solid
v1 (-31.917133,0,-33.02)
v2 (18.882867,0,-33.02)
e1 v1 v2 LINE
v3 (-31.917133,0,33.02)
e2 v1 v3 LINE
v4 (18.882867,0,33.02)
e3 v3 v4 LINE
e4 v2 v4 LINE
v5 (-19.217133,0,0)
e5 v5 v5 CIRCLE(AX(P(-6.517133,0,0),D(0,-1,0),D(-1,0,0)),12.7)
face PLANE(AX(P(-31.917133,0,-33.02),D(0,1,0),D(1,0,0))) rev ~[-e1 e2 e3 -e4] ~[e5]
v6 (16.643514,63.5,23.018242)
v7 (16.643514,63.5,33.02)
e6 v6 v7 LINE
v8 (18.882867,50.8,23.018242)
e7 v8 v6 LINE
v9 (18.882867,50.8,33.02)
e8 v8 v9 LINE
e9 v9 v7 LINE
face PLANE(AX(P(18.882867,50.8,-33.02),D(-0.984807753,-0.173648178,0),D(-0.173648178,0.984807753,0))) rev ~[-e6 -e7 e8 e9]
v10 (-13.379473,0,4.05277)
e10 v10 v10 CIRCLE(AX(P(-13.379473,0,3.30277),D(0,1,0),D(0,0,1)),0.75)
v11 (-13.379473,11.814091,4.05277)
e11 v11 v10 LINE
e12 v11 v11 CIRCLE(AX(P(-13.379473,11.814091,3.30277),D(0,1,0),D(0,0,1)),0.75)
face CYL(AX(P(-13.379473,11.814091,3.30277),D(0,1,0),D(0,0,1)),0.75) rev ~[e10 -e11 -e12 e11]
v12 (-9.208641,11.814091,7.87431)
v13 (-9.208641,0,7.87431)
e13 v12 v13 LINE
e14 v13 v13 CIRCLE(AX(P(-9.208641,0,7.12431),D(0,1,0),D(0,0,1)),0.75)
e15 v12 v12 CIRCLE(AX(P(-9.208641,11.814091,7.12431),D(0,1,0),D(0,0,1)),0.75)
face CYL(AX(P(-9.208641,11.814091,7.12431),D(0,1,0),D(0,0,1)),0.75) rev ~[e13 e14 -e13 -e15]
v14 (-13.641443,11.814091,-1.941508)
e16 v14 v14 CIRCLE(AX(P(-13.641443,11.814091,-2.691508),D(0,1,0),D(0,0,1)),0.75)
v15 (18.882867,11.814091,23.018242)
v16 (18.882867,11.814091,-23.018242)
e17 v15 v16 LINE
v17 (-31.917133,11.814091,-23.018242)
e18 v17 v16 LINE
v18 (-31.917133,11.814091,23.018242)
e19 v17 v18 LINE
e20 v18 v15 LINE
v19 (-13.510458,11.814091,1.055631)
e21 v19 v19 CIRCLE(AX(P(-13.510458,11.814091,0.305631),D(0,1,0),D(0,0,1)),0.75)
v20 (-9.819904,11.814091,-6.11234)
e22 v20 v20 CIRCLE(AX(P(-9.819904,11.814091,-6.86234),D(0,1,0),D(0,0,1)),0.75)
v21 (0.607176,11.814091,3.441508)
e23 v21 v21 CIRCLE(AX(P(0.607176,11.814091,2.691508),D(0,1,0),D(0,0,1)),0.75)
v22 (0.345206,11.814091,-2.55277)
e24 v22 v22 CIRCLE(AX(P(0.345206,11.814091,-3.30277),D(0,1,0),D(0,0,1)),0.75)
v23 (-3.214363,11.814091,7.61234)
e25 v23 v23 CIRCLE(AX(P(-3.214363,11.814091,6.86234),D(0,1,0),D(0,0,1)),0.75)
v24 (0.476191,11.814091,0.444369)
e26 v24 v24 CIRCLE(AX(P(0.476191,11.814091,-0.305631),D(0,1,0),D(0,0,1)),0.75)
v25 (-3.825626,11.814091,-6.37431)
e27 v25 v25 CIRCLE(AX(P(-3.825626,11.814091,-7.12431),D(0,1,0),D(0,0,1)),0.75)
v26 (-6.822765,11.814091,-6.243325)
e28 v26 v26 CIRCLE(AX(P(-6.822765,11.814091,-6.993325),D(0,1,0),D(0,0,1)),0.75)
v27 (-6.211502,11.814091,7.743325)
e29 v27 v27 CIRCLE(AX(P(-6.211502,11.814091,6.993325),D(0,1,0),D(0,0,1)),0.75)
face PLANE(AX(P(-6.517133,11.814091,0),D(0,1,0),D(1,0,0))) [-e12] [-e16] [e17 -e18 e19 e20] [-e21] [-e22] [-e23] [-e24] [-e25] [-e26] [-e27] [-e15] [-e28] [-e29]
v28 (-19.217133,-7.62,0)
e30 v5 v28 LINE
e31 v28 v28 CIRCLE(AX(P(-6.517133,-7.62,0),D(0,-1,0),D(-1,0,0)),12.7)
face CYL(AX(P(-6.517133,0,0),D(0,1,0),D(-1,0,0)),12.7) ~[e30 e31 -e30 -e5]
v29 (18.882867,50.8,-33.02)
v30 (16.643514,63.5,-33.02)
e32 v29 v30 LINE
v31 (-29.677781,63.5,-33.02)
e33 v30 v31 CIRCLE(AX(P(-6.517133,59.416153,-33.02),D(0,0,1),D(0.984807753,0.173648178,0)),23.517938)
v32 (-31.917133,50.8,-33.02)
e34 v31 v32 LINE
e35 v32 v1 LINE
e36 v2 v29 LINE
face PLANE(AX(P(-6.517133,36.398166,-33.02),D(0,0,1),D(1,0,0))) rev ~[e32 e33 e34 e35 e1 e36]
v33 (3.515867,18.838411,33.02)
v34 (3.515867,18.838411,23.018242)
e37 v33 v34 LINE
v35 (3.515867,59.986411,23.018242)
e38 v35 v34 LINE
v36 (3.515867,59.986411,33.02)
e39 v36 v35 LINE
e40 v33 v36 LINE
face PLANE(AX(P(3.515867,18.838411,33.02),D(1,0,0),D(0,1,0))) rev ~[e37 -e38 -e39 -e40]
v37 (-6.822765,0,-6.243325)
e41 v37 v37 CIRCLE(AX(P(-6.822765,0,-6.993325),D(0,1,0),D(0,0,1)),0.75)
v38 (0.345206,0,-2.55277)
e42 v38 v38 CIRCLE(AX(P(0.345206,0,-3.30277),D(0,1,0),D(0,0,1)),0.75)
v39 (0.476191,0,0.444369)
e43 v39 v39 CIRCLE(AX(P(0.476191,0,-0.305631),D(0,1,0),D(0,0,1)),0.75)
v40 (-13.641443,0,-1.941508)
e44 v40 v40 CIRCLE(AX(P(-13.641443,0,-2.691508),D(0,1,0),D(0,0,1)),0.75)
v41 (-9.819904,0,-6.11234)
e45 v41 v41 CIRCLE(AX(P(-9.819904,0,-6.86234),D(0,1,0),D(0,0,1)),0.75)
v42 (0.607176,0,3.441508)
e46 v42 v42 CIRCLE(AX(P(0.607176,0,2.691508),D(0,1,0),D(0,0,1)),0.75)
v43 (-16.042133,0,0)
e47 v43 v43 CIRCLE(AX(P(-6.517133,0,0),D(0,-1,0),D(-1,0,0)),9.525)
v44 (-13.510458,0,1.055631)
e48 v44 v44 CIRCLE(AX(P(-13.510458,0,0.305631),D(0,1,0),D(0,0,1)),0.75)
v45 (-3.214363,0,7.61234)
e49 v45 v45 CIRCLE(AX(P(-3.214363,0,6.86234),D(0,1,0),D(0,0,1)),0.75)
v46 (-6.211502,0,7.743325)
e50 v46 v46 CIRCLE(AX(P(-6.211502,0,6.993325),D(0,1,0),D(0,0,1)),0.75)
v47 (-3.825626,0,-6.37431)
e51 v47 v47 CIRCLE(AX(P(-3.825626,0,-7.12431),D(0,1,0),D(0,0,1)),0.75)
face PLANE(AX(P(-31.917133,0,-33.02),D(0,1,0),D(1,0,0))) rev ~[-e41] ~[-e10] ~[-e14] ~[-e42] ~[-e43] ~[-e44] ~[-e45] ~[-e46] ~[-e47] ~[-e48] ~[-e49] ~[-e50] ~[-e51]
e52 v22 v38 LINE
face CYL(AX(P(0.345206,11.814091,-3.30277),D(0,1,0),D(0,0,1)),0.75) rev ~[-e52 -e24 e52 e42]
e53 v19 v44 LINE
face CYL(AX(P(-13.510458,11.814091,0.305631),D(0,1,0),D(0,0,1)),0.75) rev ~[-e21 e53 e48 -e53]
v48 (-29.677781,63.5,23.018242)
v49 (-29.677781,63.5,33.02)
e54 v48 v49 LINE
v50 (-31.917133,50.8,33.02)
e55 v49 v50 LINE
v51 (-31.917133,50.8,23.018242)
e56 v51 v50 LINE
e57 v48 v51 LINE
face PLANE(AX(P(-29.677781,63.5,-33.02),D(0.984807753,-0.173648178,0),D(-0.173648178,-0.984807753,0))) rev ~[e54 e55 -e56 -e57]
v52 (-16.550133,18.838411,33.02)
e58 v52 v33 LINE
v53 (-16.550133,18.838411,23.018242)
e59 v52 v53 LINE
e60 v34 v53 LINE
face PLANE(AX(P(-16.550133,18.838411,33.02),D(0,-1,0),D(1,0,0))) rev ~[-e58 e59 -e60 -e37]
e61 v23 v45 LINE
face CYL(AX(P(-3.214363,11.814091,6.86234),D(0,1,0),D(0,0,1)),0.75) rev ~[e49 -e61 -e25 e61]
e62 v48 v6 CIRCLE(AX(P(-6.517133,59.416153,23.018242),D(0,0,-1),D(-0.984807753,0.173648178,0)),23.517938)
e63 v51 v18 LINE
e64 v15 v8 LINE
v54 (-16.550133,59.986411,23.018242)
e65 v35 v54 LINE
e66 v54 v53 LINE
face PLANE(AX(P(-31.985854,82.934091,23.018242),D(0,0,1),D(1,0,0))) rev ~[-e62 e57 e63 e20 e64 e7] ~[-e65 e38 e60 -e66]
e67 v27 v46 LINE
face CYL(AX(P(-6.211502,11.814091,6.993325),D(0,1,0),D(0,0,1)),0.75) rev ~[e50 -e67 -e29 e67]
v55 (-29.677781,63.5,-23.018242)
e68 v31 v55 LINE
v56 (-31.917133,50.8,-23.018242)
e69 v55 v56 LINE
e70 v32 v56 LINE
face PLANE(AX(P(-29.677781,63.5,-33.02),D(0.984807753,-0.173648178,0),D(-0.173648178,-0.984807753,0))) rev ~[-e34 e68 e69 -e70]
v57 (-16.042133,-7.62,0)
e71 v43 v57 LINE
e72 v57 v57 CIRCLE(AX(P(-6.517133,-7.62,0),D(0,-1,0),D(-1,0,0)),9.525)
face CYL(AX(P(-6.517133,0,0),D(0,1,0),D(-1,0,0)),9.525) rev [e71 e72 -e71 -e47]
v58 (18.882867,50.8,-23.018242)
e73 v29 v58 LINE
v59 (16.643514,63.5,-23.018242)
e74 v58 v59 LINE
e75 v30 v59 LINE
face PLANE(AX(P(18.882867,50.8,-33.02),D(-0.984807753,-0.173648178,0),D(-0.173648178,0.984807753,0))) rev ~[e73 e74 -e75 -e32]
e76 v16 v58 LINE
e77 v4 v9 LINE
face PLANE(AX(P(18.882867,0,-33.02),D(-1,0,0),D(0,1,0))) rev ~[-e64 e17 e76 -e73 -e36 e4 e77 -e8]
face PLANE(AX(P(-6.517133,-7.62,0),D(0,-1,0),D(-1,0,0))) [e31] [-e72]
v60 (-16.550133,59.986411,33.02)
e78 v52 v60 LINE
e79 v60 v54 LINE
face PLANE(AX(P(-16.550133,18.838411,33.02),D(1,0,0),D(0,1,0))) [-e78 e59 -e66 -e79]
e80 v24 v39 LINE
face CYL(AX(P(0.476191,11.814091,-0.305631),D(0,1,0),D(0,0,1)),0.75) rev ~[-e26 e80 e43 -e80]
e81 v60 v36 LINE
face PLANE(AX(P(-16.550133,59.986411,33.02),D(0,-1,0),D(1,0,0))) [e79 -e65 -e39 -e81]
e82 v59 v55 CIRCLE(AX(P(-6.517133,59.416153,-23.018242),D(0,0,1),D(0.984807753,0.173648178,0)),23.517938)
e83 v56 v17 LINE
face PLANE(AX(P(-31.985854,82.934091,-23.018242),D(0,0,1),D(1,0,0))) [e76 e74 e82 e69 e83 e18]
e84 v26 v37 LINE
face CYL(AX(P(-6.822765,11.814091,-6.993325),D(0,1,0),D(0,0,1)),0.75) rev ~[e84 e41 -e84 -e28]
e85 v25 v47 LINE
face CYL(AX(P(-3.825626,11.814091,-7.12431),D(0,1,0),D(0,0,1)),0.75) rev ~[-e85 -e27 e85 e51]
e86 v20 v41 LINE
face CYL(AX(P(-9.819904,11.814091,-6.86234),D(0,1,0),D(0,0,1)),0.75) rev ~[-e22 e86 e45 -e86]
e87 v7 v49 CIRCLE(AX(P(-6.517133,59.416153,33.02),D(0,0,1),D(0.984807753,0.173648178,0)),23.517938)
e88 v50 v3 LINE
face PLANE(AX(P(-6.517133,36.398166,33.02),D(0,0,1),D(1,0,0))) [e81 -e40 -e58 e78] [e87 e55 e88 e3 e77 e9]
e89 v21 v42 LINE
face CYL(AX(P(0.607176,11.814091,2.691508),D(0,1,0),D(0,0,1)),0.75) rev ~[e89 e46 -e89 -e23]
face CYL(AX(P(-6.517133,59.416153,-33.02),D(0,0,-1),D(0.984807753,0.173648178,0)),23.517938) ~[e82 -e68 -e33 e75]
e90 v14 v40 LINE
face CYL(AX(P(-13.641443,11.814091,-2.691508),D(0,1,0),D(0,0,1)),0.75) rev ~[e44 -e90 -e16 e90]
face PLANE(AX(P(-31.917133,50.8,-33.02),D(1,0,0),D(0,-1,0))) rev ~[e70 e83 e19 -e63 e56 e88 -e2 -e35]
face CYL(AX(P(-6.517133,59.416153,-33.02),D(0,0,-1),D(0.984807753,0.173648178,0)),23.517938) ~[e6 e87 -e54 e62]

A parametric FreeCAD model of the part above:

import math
import FreeCAD as App
import Part
import Sketcher
from FreeCAD import Vector
Q = App.Units.Quantity


def add_polygon(sketch, points):
    """Adds a closed chain of lines whose ends are joined by coincident constraints."""
    first, n = sketch.GeometryCount, len(points)
    for a, b in zip(points, points[1:] + points[:1]):
        sketch.addGeometry(Part.LineSegment(App.Vector(*a, 0), App.Vector(*b, 0)), False)
    for i in range(n):
        sketch.addConstraint(Sketcher.Constraint("Coincident", first + i, 2, first + (i + 1) % n, 1))

doc = App.newDocument("Part")
body = doc.addObject("PartDesign::Body", "Body")

# Sketch on XY plane
sketch1 = doc.addObject("Sketcher::SketchObject", "Sketch")
body.addObject(sketch1)
sketch1.AttachmentSupport = (doc.XY_Plane, [""])
sketch1.MapMode = "FlatFace"
sketch1.addGeometry(Part.LineSegment(Vector(-32, 0, 0), Vector(19, 0, 0)), False)
sketch1.addGeometry(Part.LineSegment(Vector(19, 0, 0), Vector(19, 51, 0)), False)
sketch1.addGeometry(Part.LineSegment(Vector(19, 51, 0), Vector(17, 64, 0)), False)
sketch1.addGeometry(Part.ArcOfCircle(Part.Circle(Vector(-7, 59, 0), Vector(0, 0, 1), 24), math.radians(10), math.radians(170)), False)
sketch1.addGeometry(Part.LineSegment(Vector(-30, 64, 0), Vector(-32, 51, 0)), False)
sketch1.addGeometry(Part.LineSegment(Vector(-32, 51, 0), Vector(-32, 0, 0)), False)
sketch1.addConstraint(Sketcher.Constraint("Coincident", 0, 2, 1, 1))
sketch1.addConstraint(Sketcher.Constraint("Coincident", 1, 2, 2, 1))
sketch1.addConstraint(Sketcher.Constraint("Tangent", 2, 2, 3, 1))
sketch1.addConstraint(Sketcher.Constraint("Tangent", 3, 2, 4, 1))
sketch1.addConstraint(Sketcher.Constraint("Coincident", 4, 2, 5, 1))
sketch1.addConstraint(Sketcher.Constraint("Coincident", 5, 2, 0, 1))
sketch1.addConstraint(Sketcher.Constraint("Horizontal", 0))
sketch1.addConstraint(Sketcher.Constraint("Vertical", 1))
sketch1.addConstraint(Sketcher.Constraint("Vertical", 5))
sketch1.addConstraint(Sketcher.Constraint("PointOnObject", 0, 2, -1))
sketch1.addConstraint(Sketcher.Constraint("Horizontal", 2, 2, 3, 2))
sketch1.addConstraint(Sketcher.Constraint("Horizontal", 1, 2, 4, 2))
sketch1.addConstraint(Sketcher.Constraint("Equal", 0, 1))
sketch1.addConstraint(Sketcher.Constraint("DistanceX", 0, 1, 0, 2, Q("2 in")))
sketch1.addConstraint(Sketcher.Constraint("Angle", 2, Q("100 deg")))
sketch1.addConstraint(Sketcher.Constraint("DistanceY", -1, 1, 2, 2, Q("2.5 in")))
sketch1.addConstraint(Sketcher.Constraint("DistanceX", 3, 2, -1, 1, 29.677781))
pad1 = doc.addObject("PartDesign::Pad", "Pad")
body.addObject(pad1)
pad1.Profile = sketch1
pad1.Type = "TwoLengths"
pad1.Length = Q("1.3 in")
pad1.Length2 = Q("1.3 in")

# Sketch on XZ plane
sketch2 = doc.addObject("Sketcher::SketchObject", "Sketch001")
body.addObject(sketch2)
sketch2.AttachmentSupport = (doc.XZ_Plane, [""])
sketch2.MapMode = "FlatFace"
sketch2.AttachmentOffset = App.Placement(Vector(0, 0, -82.934091), App.Rotation())
add_polygon(sketch2, [(-32, -23), (-32, 23), (19, 23), (19, -23)])  # lines 0-3
sketch2.addConstraint(Sketcher.Constraint("Vertical", 0))
sketch2.addConstraint(Sketcher.Constraint("Horizontal", 1))
sketch2.addConstraint(Sketcher.Constraint("Vertical", 2))
sketch2.addConstraint(Sketcher.Constraint("Horizontal", 3))
sketch2.addConstraint(Sketcher.Constraint("DistanceX", 1, 1, 1, 2, 50.937442))
sketch2.addConstraint(Sketcher.Constraint("DistanceY", 0, 1, 0, 2, 46.036485))
sketch2.addConstraint(Sketcher.Constraint("DistanceX", 0, 2, -1, 1, 31.985854))
sketch2.addConstraint(Sketcher.Constraint("DistanceY", -1, 1, 0, 2, 23.018242))
pocket1 = doc.addObject("PartDesign::Pocket", "Pocket")
body.addObject(pocket1)
pocket1.Profile = sketch2
pocket1.Length = Q("2.8 in")
pocket1.Reversed = True

# Sketch on XZ plane
sketch3 = doc.addObject("Sketcher::SketchObject", "Sketch002")
body.addObject(sketch3)
sketch3.AttachmentSupport = (doc.XZ_Plane, [""])
sketch3.MapMode = "FlatFace"
sketch3.addGeometry(Part.Circle(Vector(-7, 0, 0), Vector(0, 0, 1), 13), False)
sketch3.addGeometry(Part.Circle(Vector(-7, 0, 0), Vector(0, 0, 1), 10), False)
sketch3.addConstraint(Sketcher.Constraint("Coincident", 1, 3, 0, 3))
sketch3.addConstraint(Sketcher.Constraint("PointOnObject", 0, 3, -1))
sketch3.addConstraint(Sketcher.Constraint("Diameter", 0, Q("1 in")))
sketch3.addConstraint(Sketcher.Constraint("Diameter", 1, Q("0.75 in")))
sketch3.addConstraint(Sketcher.Constraint("DistanceX", 0, 3, -1, 1, 6.517133))
pad2 = doc.addObject("PartDesign::Pad", "Pad001")
body.addObject(pad2)
pad2.Profile = sketch3
pad2.Length = Q("0.3 in")

# Sketch on XZ plane
sketch4 = doc.addObject("Sketcher::SketchObject", "Sketch003")
body.addObject(sketch4)
sketch4.AttachmentSupport = (doc.XZ_Plane, [""])
sketch4.MapMode = "FlatFace"
sketch4.AttachmentOffset = App.Placement(Vector(0, 0, -11.814091), App.Rotation())
sketch4.addGeometry(Part.Circle(Vector(-3.2, 6.9, 0), Vector(0, 0, 1), 0.8), False)
sketch4.addConstraint(Sketcher.Constraint("Diameter", 0, 1.5))
sketch4.addConstraint(Sketcher.Constraint("DistanceY", -1, 1, 0, 3, 6.86234))
sketch4.addConstraint(Sketcher.Constraint("DistanceX", 0, 3, -1, 1, 3.214363))
pocket2 = doc.addObject("PartDesign::Pocket", "Pocket001")
body.addObject(pocket2)
pocket2.Profile = sketch4
pocket2.Type = "UpToFirst"
pocket2.Reversed = True

# Sketch on XZ plane
sketch5 = doc.addObject("Sketcher::SketchObject", "Sketch004")
body.addObject(sketch5)
sketch5.AttachmentSupport = (doc.XZ_Plane, [""])
sketch5.MapMode = "FlatFace"
sketch5.AttachmentOffset = App.Placement(Vector(0, 0, -11.814091), App.Rotation())
sketch5.addGeometry(Part.Circle(Vector(-6.2, 7, 0), Vector(0, 0, 1), 0.8), False)
sketch5.addConstraint(Sketcher.Constraint("Diameter", 0, 1.5))
sketch5.addConstraint(Sketcher.Constraint("DistanceX", 0, 3, -1, 1, 6.211502))
sketch5.addConstraint(Sketcher.Constraint("DistanceY", -1, 1, 0, 3, 6.993325))
pocket3 = doc.addObject("PartDesign::Pocket", "Pocket002")
body.addObject(pocket3)
pocket3.Profile = sketch5
pocket3.Type = "UpToFirst"
pocket3.Reversed = True

# Sketch on XZ plane
sketch6 = doc.addObject("Sketcher::SketchObject", "Sketch005")
body.addObject(sketch6)
sketch6.AttachmentSupport = (doc.XZ_Plane, [""])
sketch6.MapMode = "FlatFace"
sketch6.AttachmentOffset = App.Placement(Vector(0, 0, -11.814091), App.Rotation())
sketch6.addGeometry(Part.Circle(Vector(-9.2, 7.1, 0), Vector(0, 0, 1), 0.8), False)
sketch6.addConstraint(Sketcher.Constraint("Diameter", 0, 1.5))
sketch6.addConstraint(Sketcher.Constraint("DistanceX", 0, 3, -1, 1, 9.208641))
sketch6.addConstraint(Sketcher.Constraint("DistanceY", -1, 1, 0, 3, 7.12431))
pocket4 = doc.addObject("PartDesign::Pocket", "Pocket003")
body.addObject(pocket4)
pocket4.Profile = sketch6
pocket4.Type = "UpToFirst"
pocket4.Reversed = True

# Sketch on XZ plane
sketch7 = doc.addObject("Sketcher::SketchObject", "Sketch006")
body.addObject(sketch7)
sketch7.AttachmentSupport = (doc.XZ_Plane, [""])
sketch7.MapMode = "FlatFace"
sketch7.AttachmentOffset = App.Placement(Vector(0, 0, -11.814091), App.Rotation())
sketch7.addGeometry(Part.Circle(Vector(-13.4, 3.3, 0), Vector(0, 0, 1), 0.8), False)
sketch7.addConstraint(Sketcher.Constraint("Diameter", 0, 1.5))
sketch7.addConstraint(Sketcher.Constraint("DistanceY", -1, 1, 0, 3, 3.30277))
sketch7.addConstraint(Sketcher.Constraint("DistanceX", 0, 3, -1, 1, 13.379473))
pocket5 = doc.addObject("PartDesign::Pocket", "Pocket004")
body.addObject(pocket5)
pocket5.Profile = sketch7
pocket5.Type = "UpToFirst"
pocket5.Reversed = True

# Sketch on XZ plane
sketch8 = doc.addObject("Sketcher::SketchObject", "Sketch007")
body.addObject(sketch8)
sketch8.AttachmentSupport = (doc.XZ_Plane, [""])
sketch8.MapMode = "FlatFace"
sketch8.AttachmentOffset = App.Placement(Vector(0, 0, -11.814091), App.Rotation())
sketch8.addGeometry(Part.Circle(Vector(-13.5, 0.3, 0), Vector(0, 0, 1), 0.8), False)
sketch8.addConstraint(Sketcher.Constraint("Diameter", 0, 1.5))
sketch8.addConstraint(Sketcher.Constraint("DistanceY", -1, 1, 0, 3, 0.305631))
sketch8.addConstraint(Sketcher.Constraint("DistanceX", 0, 3, -1, 1, 13.510458))
pocket6 = doc.addObject("PartDesign::Pocket", "Pocket005")
body.addObject(pocket6)
pocket6.Profile = sketch8
pocket6.Type = "UpToFirst"
pocket6.Reversed = True

# Sketch on XZ plane
sketch9 = doc.addObject("Sketcher::SketchObject", "Sketch008")
body.addObject(sketch9)
sketch9.AttachmentSupport = (doc.XZ_Plane, [""])
sketch9.MapMode = "FlatFace"
sketch9.AttachmentOffset = App.Placement(Vector(0, 0, -11.814091), App.Rotation())
sketch9.addGeometry(Part.Circle(Vector(-13.6, -2.7, 0), Vector(0, 0, 1), 0.8), False)
sketch9.addConstraint(Sketcher.Constraint("Diameter", 0, 1.5))
sketch9.addConstraint(Sketcher.Constraint("DistanceX", 0, 3, -1, 1, 13.641443))
sketch9.addConstraint(Sketcher.Constraint("DistanceY", 0, 3, -1, 1, 2.691508))
pocket7 = doc.addObject("PartDesign::Pocket", "Pocket006")
body.addObject(pocket7)
pocket7.Profile = sketch9
pocket7.Type = "UpToFirst"
pocket7.Reversed = True

# Sketch on XZ plane
sketch10 = doc.addObject("Sketcher::SketchObject", "Sketch009")
body.addObject(sketch10)
sketch10.AttachmentSupport = (doc.XZ_Plane, [""])
sketch10.MapMode = "FlatFace"
sketch10.AttachmentOffset = App.Placement(Vector(0, 0, -11.814091), App.Rotation())
sketch10.addGeometry(Part.Circle(Vector(0.6, 2.7, 0), Vector(0, 0, 1), 0.8), False)
sketch10.addConstraint(Sketcher.Constraint("Diameter", 0, 1.5))
sketch10.addConstraint(Sketcher.Constraint("DistanceX", -1, 1, 0, 3, 0.607176))
sketch10.addConstraint(Sketcher.Constraint("DistanceY", -1, 1, 0, 3, 2.691508))
pocket8 = doc.addObject("PartDesign::Pocket", "Pocket007")
body.addObject(pocket8)
pocket8.Profile = sketch10
pocket8.Type = "UpToFirst"
pocket8.Reversed = True

# Sketch on XZ plane
sketch11 = doc.addObject("Sketcher::SketchObject", "Sketch010")
body.addObject(sketch11)
sketch11.AttachmentSupport = (doc.XZ_Plane, [""])
sketch11.MapMode = "FlatFace"
sketch11.AttachmentOffset = App.Placement(Vector(0, 0, -11.814091), App.Rotation())
sketch11.addGeometry(Part.Circle(Vector(0.5, -0.3, 0), Vector(0, 0, 1), 0.8), False)
sketch11.addConstraint(Sketcher.Constraint("Diameter", 0, 1.5))
sketch11.addConstraint(Sketcher.Constraint("DistanceX", -1, 1, 0, 3, 0.476191))
sketch11.addConstraint(Sketcher.Constraint("DistanceY", 0, 3, -1, 1, 0.305631))
pocket9 = doc.addObject("PartDesign::Pocket", "Pocket008")
body.addObject(pocket9)
pocket9.Profile = sketch11
pocket9.Type = "UpToFirst"
pocket9.Reversed = True

# Sketch on XZ plane
sketch12 = doc.addObject("Sketcher::SketchObject", "Sketch011")
body.addObject(sketch12)
sketch12.AttachmentSupport = (doc.XZ_Plane, [""])
sketch12.MapMode = "FlatFace"
sketch12.AttachmentOffset = App.Placement(Vector(0, 0, -11.814091), App.Rotation())
sketch12.addGeometry(Part.Circle(Vector(0.3, -3.3, 0), Vector(0, 0, 1), 0.8), False)
sketch12.addConstraint(Sketcher.Constraint("Diameter", 0, 1.5))
sketch12.addConstraint(Sketcher.Constraint("DistanceY", 0, 3, -1, 1, 3.30277))
sketch12.addConstraint(Sketcher.Constraint("DistanceX", -1, 1, 0, 3, 0.345206))
pocket10 = doc.addObject("PartDesign::Pocket", "Pocket009")
body.addObject(pocket10)
pocket10.Profile = sketch12
pocket10.Type = "UpToFirst"
pocket10.Reversed = True

# Sketch on XZ plane
sketch13 = doc.addObject("Sketcher::SketchObject", "Sketch012")
body.addObject(sketch13)
sketch13.AttachmentSupport = (doc.XZ_Plane, [""])
sketch13.MapMode = "FlatFace"
sketch13.AttachmentOffset = App.Placement(Vector(0, 0, -11.814091), App.Rotation())
sketch13.addGeometry(Part.Circle(Vector(-3.8, -7.1, 0), Vector(0, 0, 1), 0.8), False)
sketch13.addConstraint(Sketcher.Constraint("Diameter", 0, 1.5))
sketch13.addConstraint(Sketcher.Constraint("DistanceY", 0, 3, -1, 1, 7.12431))
sketch13.addConstraint(Sketcher.Constraint("DistanceX", 0, 3, -1, 1, 3.825626))
pocket11 = doc.addObject("PartDesign::Pocket", "Pocket010")
body.addObject(pocket11)
pocket11.Profile = sketch13
pocket11.Type = "UpToFirst"
pocket11.Reversed = True

# Sketch on XZ plane
sketch14 = doc.addObject("Sketcher::SketchObject", "Sketch013")
body.addObject(sketch14)
sketch14.AttachmentSupport = (doc.XZ_Plane, [""])
sketch14.MapMode = "FlatFace"
sketch14.AttachmentOffset = App.Placement(Vector(0, 0, -11.814091), App.Rotation())
sketch14.addGeometry(Part.Circle(Vector(-6.8, -7, 0), Vector(0, 0, 1), 0.8), False)
sketch14.addConstraint(Sketcher.Constraint("Diameter", 0, 1.5))
sketch14.addConstraint(Sketcher.Constraint("DistanceX", 0, 3, -1, 1, 6.822765))
sketch14.addConstraint(Sketcher.Constraint("DistanceY", 0, 3, -1, 1, 6.993325))
pocket12 = doc.addObject("PartDesign::Pocket", "Pocket011")
body.addObject(pocket12)
pocket12.Profile = sketch14
pocket12.Type = "UpToFirst"
pocket12.Reversed = True

# Sketch on XZ plane
sketch15 = doc.addObject("Sketcher::SketchObject", "Sketch014")
body.addObject(sketch15)
sketch15.AttachmentSupport = (doc.XZ_Plane, [""])
sketch15.MapMode = "FlatFace"
sketch15.AttachmentOffset = App.Placement(Vector(0, 0, -11.814091), App.Rotation())
sketch15.addGeometry(Part.Circle(Vector(-9.8, -6.9, 0), Vector(0, 0, 1), 0.8), False)
sketch15.addConstraint(Sketcher.Constraint("Diameter", 0, 1.5))
sketch15.addConstraint(Sketcher.Constraint("DistanceY", 0, 3, -1, 1, 6.86234))
sketch15.addConstraint(Sketcher.Constraint("DistanceX", 0, 3, -1, 1, 9.819904))
pocket13 = doc.addObject("PartDesign::Pocket", "Pocket012")
body.addObject(pocket13)
pocket13.Profile = sketch15
pocket13.Type = "UpToFirst"
pocket13.Reversed = True

# Sketch on XY plane
sketch16 = doc.addObject("Sketcher::SketchObject", "Sketch015")
body.addObject(sketch16)
sketch16.AttachmentSupport = (doc.XY_Plane, [""])
sketch16.MapMode = "FlatFace"
sketch16.AttachmentOffset = App.Placement(Vector(0, 0, 1.3 * 25.4), App.Rotation())
add_polygon(sketch16, [(-17, 60), (-17, 19), (4, 19), (4, 60)])  # lines 0-3
sketch16.addConstraint(Sketcher.Constraint("Vertical", 0))
sketch16.addConstraint(Sketcher.Constraint("Horizontal", 1))
sketch16.addConstraint(Sketcher.Constraint("Vertical", 2))
sketch16.addConstraint(Sketcher.Constraint("Horizontal", 3))
sketch16.addConstraint(Sketcher.Constraint("DistanceX", 1, 1, 1, 2, Q("0.79 in")))
sketch16.addConstraint(Sketcher.Constraint("DistanceY", 0, 2, 0, 1, Q("1.62 in")))
sketch16.addConstraint(Sketcher.Constraint("DistanceY", -1, 1, 0, 2, 18.838411))
sketch16.addConstraint(Sketcher.Constraint("DistanceX", 0, 2, -1, 1, 16.550133))
pocket14 = doc.addObject("PartDesign::Pocket", "Pocket013")
body.addObject(pocket14)
pocket14.Profile = sketch16
pocket14.Type = "UpToFirst"

doc.recompute()
